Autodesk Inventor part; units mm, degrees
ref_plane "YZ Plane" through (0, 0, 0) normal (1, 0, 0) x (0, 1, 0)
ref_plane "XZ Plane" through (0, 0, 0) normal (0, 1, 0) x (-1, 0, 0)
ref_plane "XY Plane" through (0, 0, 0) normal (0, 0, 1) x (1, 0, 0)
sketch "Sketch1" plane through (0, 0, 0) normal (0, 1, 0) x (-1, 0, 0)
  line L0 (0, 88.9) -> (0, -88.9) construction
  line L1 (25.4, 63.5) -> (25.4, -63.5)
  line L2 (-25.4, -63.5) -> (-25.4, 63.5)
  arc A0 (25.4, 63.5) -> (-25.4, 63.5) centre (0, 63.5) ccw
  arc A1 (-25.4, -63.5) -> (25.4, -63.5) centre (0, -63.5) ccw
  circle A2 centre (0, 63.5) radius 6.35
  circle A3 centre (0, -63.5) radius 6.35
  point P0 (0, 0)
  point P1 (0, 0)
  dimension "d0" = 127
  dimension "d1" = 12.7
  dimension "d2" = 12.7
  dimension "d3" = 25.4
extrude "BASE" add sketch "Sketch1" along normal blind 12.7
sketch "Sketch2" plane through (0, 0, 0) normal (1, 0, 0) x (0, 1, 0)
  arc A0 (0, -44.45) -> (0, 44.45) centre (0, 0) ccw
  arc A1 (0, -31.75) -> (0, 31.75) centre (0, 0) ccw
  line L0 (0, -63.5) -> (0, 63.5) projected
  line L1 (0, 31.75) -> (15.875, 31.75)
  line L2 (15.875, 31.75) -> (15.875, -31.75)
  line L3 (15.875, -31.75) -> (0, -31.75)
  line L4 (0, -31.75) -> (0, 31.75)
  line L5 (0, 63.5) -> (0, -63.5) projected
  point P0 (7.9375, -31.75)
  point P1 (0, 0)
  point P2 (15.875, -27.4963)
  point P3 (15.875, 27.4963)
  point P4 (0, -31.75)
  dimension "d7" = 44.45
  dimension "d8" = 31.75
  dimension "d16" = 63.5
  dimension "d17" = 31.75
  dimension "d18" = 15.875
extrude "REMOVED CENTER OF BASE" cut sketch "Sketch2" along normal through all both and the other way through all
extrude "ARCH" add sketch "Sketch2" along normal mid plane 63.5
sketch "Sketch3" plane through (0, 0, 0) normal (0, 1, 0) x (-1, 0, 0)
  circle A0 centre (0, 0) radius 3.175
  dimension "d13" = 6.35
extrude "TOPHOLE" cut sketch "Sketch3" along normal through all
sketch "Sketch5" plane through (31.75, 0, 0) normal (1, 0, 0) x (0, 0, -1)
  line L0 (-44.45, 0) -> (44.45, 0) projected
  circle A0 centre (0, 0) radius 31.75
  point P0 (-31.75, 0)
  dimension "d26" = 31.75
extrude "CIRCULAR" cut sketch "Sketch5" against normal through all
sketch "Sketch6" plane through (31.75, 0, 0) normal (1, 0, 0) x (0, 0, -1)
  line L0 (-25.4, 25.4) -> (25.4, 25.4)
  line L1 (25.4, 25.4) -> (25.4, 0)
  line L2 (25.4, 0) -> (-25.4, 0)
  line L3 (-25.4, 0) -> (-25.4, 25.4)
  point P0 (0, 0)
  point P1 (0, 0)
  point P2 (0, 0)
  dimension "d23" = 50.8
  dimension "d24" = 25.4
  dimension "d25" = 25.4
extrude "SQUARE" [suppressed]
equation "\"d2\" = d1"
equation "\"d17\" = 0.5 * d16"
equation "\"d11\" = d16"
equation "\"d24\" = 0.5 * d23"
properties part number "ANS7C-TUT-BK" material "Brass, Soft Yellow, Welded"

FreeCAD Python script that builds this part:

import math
import FreeCAD as App
import Part
import Sketcher
Q = App.Units.Quantity

doc = App.newDocument("Part")
body = doc.addObject("PartDesign::Body", "Body")
body.AllowCompound = True

# Sketch on XZ plane
sketch1 = body.newObject("Sketcher::SketchObject", "Sketch")
sketch1.AttachmentSupport = (doc.getObject("XZ_Plane"), [""])
sketch1.MapMode = "FlatFace"
sketch1.addGeometry([
    Part.LineSegment(App.Vector(-25, -64, 0), App.Vector(-25, 64, 0)),  # 0
    Part.ArcOfCircle(Part.Circle(App.Vector(0, 64, 0), App.Vector(0, 0, 1), 25), math.radians(0), math.radians(180)),  # 1
    Part.LineSegment(App.Vector(25, 64, 0), App.Vector(25, -64, 0)),  # 2
    Part.ArcOfCircle(Part.Circle(App.Vector(0, -64, 0), App.Vector(0, 0, 1), 25), math.radians(180), math.radians(360)),  # 3
    Part.Circle(App.Vector(0, -64, 0), App.Vector(0, 0, 1), 6),  # 4
    Part.Circle(App.Vector(0, 64, 0), App.Vector(0, 0, 1), 6),  # 5
], False)
sketch1.addConstraint([
    Sketcher.Constraint("Tangent", 0, 2, 1, 2),
    Sketcher.Constraint("Tangent", 1, 1, 2, 1),
    Sketcher.Constraint("Tangent", 2, 2, 3, 2),
    Sketcher.Constraint("Tangent", 3, 1, 0, 1),
    Sketcher.Constraint("Vertical", 0),
    Sketcher.Constraint("Vertical", 2),
    Sketcher.Constraint("Coincident", 4, 3, 3, 3),
    Sketcher.Constraint("Coincident", 5, 3, 1, 3),
    Sketcher.Constraint("Equal", 4, 5),
    Sketcher.Constraint("Symmetric", 1, 3, 3, 3, -1, 1),
    Sketcher.Constraint("Radius", 1, Q("1 in")),
    Sketcher.Constraint("Diameter", 4, Q("0.5 in")),
    Sketcher.Constraint("DistanceY", 0, 1, 0, 2, Q("5 in")),
])
pad1 = body.newObject("PartDesign::Pad", "Pad")
pad1.Profile = sketch1
pad1.Length = Q("0.5 in")
pad1.Reversed = True

# Sketch on YZ plane
sketch2 = body.newObject("Sketcher::SketchObject", "Sketch001")
sketch2.AttachmentSupport = (doc.getObject("YZ_Plane"), [""])
sketch2.MapMode = "FlatFace"
sketch2.addGeometry([
    Part.ArcOfCircle(Part.Circle(App.Vector(0, 0, 0), App.Vector(0, 0, 1), 44), math.radians(-90), math.radians(90)),
    Part.LineSegment(App.Vector(0, 44, 0), App.Vector(0, -44, 0)),
], False)
sketch2.addConstraint([
    Sketcher.Constraint("Coincident", 0, 1, 1, 2),
    Sketcher.Constraint("Coincident", 1, 1, 0, 2),
    Sketcher.Constraint("Vertical", 1),
    Sketcher.Constraint("Coincident", 0, 3, -1, 1),
    Sketcher.Constraint("PointOnObject", 0, 1, -2),
    Sketcher.Constraint("Radius", 0, Q("1.75 in")),
])
pocket1 = body.newObject("PartDesign::Pocket", "Pocket")
pocket1.Profile = sketch2
pocket1.Type = "ThroughAll"
pocket1.Midplane = True

# Sketch on YZ plane
sketch3 = body.newObject("Sketcher::SketchObject", "Sketch002")
sketch3.AttachmentSupport = (doc.getObject("YZ_Plane"), [""])
sketch3.MapMode = "FlatFace"
sketch3.addGeometry([
    Part.ArcOfCircle(Part.Circle(App.Vector(0, 0, 0), App.Vector(0, 0, 1), 44), math.radians(-90), math.radians(90)),
    Part.LineSegment(App.Vector(0, 44, 0), App.Vector(0, -44, 0)),
], False)
sketch3.addConstraint([
    Sketcher.Constraint("Coincident", 0, 1, 1, 2),
    Sketcher.Constraint("Coincident", 1, 1, 0, 2),
    Sketcher.Constraint("Vertical", 1),
    Sketcher.Constraint("Coincident", 0, 3, -1, 1),
    Sketcher.Constraint("PointOnObject", 0, 1, -2),
    Sketcher.Constraint("Radius", 0, Q("1.75 in")),
])
pad2 = body.newObject("PartDesign::Pad", "Pad001")
pad2.Profile = sketch3
pad2.Length = Q("2.5 in")
pad2.Midplane = True

# Sketch on XZ plane
sketch4 = body.newObject("Sketcher::SketchObject", "Sketch003")
sketch4.AttachmentSupport = (doc.getObject("XZ_Plane"), [""])
sketch4.MapMode = "FlatFace"
sketch4.addGeometry(Part.Circle(App.Vector(0, 0, 0), App.Vector(0, 0, 1), 3.2), False)
sketch4.addConstraint([
    Sketcher.Constraint("Coincident", 0, 3, -1, 1),
    Sketcher.Constraint("Diameter", 0, Q("0.25 in")),
])
pocket2 = body.newObject("PartDesign::Pocket", "Pocket001")
pocket2.Profile = sketch4
pocket2.Type = "ThroughAll"

# Sketch on YZ plane
sketch5 = body.newObject("Sketcher::SketchObject", "Sketch004")
sketch5.AttachmentSupport = (doc.getObject("YZ_Plane"), [""])
sketch5.MapMode = "FlatFace"
sketch5.AttachmentOffset = App.Placement(App.Vector(0, 0, 1.25 * 25.4), App.Rotation())
sketch5.addGeometry(Part.Circle(App.Vector(0, 0, 0), App.Vector(0, 0, 1), 32), False)
sketch5.addConstraint([
    Sketcher.Constraint("Coincident", 0, 3, -1, 1),
    Sketcher.Constraint("Diameter", 0, Q("2.5 in")),
])
pocket3 = body.newObject("PartDesign::Pocket", "Pocket002")
pocket3.Profile = sketch5
pocket3.Type = "ThroughAll"

doc.recompute()
